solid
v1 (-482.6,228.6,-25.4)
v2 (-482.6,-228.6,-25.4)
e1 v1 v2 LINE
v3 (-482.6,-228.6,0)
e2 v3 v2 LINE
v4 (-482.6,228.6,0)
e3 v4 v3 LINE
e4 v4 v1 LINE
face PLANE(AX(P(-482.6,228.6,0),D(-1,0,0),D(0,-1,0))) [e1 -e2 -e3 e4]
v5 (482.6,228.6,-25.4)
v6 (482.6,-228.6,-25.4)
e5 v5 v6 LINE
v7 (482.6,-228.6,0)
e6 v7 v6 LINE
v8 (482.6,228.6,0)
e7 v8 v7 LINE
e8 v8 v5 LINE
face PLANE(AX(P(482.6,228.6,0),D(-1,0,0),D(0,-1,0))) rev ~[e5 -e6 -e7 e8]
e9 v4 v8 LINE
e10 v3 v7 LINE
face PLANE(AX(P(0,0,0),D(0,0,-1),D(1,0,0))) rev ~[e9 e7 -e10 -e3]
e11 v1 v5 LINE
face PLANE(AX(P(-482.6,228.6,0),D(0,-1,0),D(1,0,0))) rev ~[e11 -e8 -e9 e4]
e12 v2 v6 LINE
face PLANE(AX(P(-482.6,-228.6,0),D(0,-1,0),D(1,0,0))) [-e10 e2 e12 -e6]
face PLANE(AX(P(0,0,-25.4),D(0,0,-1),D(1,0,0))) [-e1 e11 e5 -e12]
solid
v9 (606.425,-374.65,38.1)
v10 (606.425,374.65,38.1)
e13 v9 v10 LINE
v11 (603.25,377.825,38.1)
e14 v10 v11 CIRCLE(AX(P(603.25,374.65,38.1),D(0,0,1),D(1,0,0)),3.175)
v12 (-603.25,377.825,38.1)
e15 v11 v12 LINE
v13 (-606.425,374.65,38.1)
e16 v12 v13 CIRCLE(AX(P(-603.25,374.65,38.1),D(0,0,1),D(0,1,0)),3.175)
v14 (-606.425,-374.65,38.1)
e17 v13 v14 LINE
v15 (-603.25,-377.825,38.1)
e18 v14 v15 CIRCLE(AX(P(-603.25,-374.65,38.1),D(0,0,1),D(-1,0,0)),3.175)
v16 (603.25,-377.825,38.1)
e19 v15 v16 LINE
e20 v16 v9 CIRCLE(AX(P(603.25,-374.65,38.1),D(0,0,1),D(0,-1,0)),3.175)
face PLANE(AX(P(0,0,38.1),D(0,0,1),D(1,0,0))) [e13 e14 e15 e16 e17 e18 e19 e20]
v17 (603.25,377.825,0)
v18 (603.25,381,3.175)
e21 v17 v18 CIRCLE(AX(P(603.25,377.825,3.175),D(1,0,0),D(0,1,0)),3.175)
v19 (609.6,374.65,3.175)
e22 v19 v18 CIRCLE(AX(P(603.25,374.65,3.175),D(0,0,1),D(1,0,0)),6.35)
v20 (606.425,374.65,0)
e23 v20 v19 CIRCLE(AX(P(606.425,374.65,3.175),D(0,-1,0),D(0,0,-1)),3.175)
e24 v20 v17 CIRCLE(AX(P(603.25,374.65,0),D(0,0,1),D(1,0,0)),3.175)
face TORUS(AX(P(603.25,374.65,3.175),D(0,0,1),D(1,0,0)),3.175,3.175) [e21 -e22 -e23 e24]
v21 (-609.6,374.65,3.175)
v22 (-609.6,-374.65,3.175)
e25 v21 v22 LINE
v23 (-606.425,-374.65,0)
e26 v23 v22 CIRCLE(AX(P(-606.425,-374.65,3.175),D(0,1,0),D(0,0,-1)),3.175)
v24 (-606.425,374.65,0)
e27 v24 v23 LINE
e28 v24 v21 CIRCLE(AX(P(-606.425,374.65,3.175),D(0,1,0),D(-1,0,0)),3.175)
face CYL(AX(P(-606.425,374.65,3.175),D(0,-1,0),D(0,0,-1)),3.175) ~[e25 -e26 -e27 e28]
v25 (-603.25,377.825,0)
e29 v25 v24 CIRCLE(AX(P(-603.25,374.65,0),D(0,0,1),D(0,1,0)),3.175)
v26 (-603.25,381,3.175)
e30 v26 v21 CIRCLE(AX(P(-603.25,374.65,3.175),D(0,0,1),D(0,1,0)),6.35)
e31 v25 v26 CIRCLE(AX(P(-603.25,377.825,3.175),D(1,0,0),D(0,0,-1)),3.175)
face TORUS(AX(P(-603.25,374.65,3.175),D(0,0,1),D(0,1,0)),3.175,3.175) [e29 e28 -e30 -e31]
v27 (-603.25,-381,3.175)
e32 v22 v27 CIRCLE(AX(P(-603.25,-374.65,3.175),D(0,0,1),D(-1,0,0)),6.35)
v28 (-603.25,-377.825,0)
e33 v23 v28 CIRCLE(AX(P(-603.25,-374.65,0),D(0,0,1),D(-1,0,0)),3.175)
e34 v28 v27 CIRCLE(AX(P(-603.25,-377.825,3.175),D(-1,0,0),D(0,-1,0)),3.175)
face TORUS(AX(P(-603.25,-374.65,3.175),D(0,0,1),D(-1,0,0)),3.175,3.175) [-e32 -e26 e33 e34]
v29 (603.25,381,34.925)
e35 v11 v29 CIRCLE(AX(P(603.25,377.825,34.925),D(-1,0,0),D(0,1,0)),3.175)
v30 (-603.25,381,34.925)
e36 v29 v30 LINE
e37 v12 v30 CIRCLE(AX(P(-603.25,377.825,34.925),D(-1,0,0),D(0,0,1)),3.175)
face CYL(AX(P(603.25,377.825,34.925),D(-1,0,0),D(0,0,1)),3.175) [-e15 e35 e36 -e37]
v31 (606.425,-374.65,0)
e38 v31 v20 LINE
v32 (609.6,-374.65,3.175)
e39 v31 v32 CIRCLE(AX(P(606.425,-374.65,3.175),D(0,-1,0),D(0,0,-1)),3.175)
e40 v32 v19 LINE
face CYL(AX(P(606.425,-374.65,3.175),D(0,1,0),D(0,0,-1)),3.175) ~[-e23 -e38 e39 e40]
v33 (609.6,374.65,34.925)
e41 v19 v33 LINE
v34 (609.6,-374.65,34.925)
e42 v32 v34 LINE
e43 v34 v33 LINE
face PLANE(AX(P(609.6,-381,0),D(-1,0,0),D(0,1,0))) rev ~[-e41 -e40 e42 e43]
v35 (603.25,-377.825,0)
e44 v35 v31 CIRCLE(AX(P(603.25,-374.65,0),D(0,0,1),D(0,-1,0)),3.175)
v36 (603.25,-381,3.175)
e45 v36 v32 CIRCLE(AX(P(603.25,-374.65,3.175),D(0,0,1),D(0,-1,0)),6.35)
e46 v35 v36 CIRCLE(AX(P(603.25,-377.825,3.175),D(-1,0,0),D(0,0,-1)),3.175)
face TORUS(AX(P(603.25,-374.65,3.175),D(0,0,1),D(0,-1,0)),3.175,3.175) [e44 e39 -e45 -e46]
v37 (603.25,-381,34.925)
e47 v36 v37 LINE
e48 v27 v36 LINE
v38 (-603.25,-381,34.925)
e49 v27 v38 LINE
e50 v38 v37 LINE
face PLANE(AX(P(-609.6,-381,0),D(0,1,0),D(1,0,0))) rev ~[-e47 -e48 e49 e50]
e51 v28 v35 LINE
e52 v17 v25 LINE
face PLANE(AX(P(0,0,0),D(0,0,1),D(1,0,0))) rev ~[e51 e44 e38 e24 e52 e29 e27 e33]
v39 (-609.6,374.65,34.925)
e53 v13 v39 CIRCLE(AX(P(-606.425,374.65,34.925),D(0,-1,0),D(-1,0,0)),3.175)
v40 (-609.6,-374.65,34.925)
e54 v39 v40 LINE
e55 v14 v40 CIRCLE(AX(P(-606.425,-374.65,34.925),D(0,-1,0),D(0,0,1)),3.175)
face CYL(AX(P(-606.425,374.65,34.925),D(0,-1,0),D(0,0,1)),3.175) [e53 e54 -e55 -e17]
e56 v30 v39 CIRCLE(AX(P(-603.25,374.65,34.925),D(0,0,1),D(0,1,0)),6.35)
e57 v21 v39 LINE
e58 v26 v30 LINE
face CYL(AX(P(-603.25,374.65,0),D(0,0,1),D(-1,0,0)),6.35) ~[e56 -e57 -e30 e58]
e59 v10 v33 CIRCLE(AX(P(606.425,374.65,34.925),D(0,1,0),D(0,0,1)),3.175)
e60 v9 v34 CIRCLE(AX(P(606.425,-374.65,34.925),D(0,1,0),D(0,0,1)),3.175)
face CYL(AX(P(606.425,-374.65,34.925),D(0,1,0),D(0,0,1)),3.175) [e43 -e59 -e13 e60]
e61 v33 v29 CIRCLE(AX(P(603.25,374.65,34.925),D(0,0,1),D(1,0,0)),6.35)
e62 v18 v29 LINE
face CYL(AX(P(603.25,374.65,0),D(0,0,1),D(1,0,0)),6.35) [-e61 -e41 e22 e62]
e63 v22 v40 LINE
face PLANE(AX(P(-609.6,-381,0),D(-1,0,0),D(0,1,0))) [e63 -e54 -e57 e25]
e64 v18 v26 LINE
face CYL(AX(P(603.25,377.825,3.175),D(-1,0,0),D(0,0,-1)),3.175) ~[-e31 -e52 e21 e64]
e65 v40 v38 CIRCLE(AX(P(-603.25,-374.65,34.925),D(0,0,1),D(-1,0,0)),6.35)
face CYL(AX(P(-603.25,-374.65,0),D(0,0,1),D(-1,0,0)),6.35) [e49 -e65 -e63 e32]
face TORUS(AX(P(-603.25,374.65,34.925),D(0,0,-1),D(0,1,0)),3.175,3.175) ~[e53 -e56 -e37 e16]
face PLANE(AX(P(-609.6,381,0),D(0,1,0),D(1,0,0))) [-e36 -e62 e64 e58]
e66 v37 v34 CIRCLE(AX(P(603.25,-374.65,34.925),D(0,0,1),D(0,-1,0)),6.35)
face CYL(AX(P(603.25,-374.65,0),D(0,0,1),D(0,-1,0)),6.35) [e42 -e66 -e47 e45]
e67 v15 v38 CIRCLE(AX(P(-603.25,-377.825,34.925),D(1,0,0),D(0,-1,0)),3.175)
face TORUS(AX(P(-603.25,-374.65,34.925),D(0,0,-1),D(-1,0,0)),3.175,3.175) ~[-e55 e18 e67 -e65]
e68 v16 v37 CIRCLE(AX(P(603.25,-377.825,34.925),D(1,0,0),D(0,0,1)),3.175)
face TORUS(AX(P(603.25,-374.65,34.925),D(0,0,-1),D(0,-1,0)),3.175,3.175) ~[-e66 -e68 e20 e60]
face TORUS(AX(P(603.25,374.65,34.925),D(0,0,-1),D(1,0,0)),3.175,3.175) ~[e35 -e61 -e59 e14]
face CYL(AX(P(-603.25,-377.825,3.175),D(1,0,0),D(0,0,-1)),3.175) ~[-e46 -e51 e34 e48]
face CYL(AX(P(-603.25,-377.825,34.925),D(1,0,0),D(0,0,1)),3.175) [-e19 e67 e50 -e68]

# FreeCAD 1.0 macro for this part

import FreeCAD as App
import Part
import Sketcher
Q = App.Units.Quantity


def edges_at(feature, points):
    """Names of the edges that pass closest to the given points."""
    edges = feature.Shape.Edges
    near = lambda p: min(range(len(edges)), key=lambda i: edges[i].distToShape(Part.Vertex(*p))[0])
    return sorted({f"Edge{near(p) + 1}" for p in points})

doc = App.newDocument("Part")
body = doc.addObject("PartDesign::Body", "Body")

# Sketch on XY plane
sketch1 = body.newObject("Sketcher::SketchObject", "Sketch")
sketch1.AttachmentSupport = (doc.getObject("XY_Plane"), [""])
sketch1.MapMode = "FlatFace"
sketch1.addGeometry([
    Part.LineSegment(App.Vector(-610, 381, 0), App.Vector(-610, -381, 0)),
    Part.LineSegment(App.Vector(-610, -381, 0), App.Vector(610, -381, 0)),
    Part.LineSegment(App.Vector(610, -381, 0), App.Vector(610, 381, 0)),
    Part.LineSegment(App.Vector(610, 381, 0), App.Vector(-610, 381, 0)),
], False)
sketch1.addConstraint([
    Sketcher.Constraint("Coincident", 0, 2, 1, 1),
    Sketcher.Constraint("Coincident", 1, 2, 2, 1),
    Sketcher.Constraint("Coincident", 2, 2, 3, 1),
    Sketcher.Constraint("Coincident", 3, 2, 0, 1),
    Sketcher.Constraint("Vertical", 0),
    Sketcher.Constraint("Horizontal", 1),
    Sketcher.Constraint("Vertical", 2),
    Sketcher.Constraint("Horizontal", 3),
    Sketcher.Constraint("Symmetric", 0, 2, 2, 2, -1, 1),
    Sketcher.Constraint("DistanceX", 1, 1, 1, 2, Q("48 in")),
    Sketcher.Constraint("DistanceY", 0, 2, 0, 1, Q("30 in")),
])
pad1 = body.newObject("PartDesign::Pad", "Pad")
pad1.Profile = sketch1
pad1.Length = Q("1.5 in")
doc.recompute()

fillet = body.newObject("PartDesign::Fillet", "Fillet")
fillet.Base = (pad1, edges_at(pad1, [
    (-609.6, -381, 19.05),
    (609.6, -381, 19.05),
    (-609.6, 381, 19.05),
    (609.6, 381, 19.05),
]))
fillet.Radius = Q("0.25 in")
doc.recompute()

fillet2 = body.newObject("PartDesign::Fillet", "Fillet001")
fillet2.Base = (fillet, edges_at(fillet, [(609.6, 0, 38.1), (609.6, 0, 0)]))
fillet2.Radius = Q("0.125 in")
body2 = doc.addObject("PartDesign::Body", "Body001")

# Sketch on XY plane
sketch2 = body2.newObject("Sketcher::SketchObject", "Sketch001")
sketch2.AttachmentSupport = (doc.getObject("XY_Plane001"), [""])
sketch2.MapMode = "FlatFace"
sketch2.addGeometry([
    Part.LineSegment(App.Vector(-483, -229, 0), App.Vector(-483, 229, 0)),
    Part.LineSegment(App.Vector(-483, 229, 0), App.Vector(483, 229, 0)),
    Part.LineSegment(App.Vector(483, 229, 0), App.Vector(483, -229, 0)),
    Part.LineSegment(App.Vector(483, -229, 0), App.Vector(-483, -229, 0)),
], False)
sketch2.addConstraint([
    Sketcher.Constraint("Coincident", 0, 2, 1, 1),
    Sketcher.Constraint("Coincident", 1, 2, 2, 1),
    Sketcher.Constraint("Coincident", 2, 2, 3, 1),
    Sketcher.Constraint("Coincident", 3, 2, 0, 1),
    Sketcher.Constraint("Vertical", 0),
    Sketcher.Constraint("Horizontal", 1),
    Sketcher.Constraint("Vertical", 2),
    Sketcher.Constraint("Horizontal", 3),
    Sketcher.Constraint("Symmetric", 0, 2, 2, 2, -1, 1),
    Sketcher.Constraint("DistanceX", 1, 1, 1, 2, Q("38 in")),
    Sketcher.Constraint("DistanceY", 0, 1, 0, 2, Q("18 in")),
])
pad2 = body2.newObject("PartDesign::Pad", "Pad001")
pad2.Profile = sketch2
pad2.Length = Q("1 in")
pad2.Reversed = True

doc.recompute()
